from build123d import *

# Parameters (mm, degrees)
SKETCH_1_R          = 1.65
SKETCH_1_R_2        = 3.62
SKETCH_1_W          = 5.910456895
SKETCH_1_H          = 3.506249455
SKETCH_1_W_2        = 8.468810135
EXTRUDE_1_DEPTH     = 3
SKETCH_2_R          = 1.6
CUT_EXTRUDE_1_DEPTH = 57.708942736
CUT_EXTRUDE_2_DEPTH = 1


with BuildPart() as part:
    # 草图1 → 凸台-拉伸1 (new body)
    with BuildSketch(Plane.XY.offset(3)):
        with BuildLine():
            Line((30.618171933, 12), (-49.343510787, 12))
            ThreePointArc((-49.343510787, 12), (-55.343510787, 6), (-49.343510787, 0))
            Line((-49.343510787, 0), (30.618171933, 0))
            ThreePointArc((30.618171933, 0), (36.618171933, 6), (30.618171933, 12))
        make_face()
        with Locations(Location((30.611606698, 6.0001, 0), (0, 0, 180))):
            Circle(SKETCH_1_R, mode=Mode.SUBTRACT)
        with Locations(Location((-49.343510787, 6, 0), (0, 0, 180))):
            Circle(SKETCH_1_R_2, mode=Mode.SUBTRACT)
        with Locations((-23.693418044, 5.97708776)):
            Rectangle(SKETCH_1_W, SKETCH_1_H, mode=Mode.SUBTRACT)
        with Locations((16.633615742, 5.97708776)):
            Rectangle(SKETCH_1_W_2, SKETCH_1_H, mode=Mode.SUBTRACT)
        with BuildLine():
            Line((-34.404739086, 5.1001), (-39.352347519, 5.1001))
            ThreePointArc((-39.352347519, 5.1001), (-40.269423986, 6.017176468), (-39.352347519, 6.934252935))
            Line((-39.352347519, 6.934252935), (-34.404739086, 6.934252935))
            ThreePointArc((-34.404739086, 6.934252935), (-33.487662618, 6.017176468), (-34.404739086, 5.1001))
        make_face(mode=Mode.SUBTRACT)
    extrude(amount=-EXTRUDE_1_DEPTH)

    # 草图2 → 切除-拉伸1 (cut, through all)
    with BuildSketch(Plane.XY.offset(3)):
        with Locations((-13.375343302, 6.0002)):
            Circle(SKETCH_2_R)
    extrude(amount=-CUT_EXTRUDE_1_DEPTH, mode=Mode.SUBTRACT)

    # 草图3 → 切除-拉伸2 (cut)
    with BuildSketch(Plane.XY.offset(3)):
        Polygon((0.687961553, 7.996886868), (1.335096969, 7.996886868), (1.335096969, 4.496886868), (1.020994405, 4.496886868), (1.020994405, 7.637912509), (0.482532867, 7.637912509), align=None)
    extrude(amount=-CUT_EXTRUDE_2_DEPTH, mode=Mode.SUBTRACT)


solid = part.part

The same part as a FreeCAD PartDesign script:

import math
import FreeCAD as App
import Part
import Sketcher
Q = App.Units.Quantity


def add_polygon(sketch, points):
    """Adds a closed chain of lines whose ends are joined by coincident constraints."""
    first, n = sketch.GeometryCount, len(points)
    for a, b in zip(points, points[1:] + points[:1]):
        sketch.addGeometry(Part.LineSegment(App.Vector(*a, 0), App.Vector(*b, 0)), False)
    for i in range(n):
        sketch.addConstraint(Sketcher.Constraint("Coincident", first + i, 2, first + (i + 1) % n, 1))

doc = App.newDocument("Part")
body = doc.addObject("PartDesign::Body", "Body")

# Sketch on XY plane
sketch1 = body.newObject("Sketcher::SketchObject", "Sketch")
sketch1.AttachmentSupport = (doc.getObject("XY_Plane"), [""])
sketch1.MapMode = "FlatFace"
sketch1.AttachmentOffset = App.Placement(App.Vector(0, 0, 3), App.Rotation())
sketch1.addGeometry(Part.LineSegment(App.Vector(30.6, 12, 0), App.Vector(-49.3, 12, 0)), False)  # 0
sketch1.addGeometry(Part.ArcOfCircle(Part.Circle(App.Vector(-49.3, 6, 0), App.Vector(0, 0, 1), 6), math.radians(90), math.radians(270)), False)  # 1
sketch1.addGeometry(Part.LineSegment(App.Vector(-49.3, 0, 0), App.Vector(30.6, 0, 0)), False)  # 2
sketch1.addGeometry(Part.ArcOfCircle(Part.Circle(App.Vector(30.6, 6, 0), App.Vector(0, 0, 1), 6), math.radians(-90), math.radians(90)), False)  # 3
add_polygon(sketch1, [(-20.7, 4.2), (-26.6, 4.2), (-26.6, 7.7), (-20.7, 7.7)])  # lines 4-7
add_polygon(sketch1, [(20.9, 4.2), (12.4, 4.2), (12.4, 7.7), (20.9, 7.7)])  # lines 8-11
sketch1.addGeometry(Part.Circle(App.Vector(-49.3, 6, 0), App.Vector(0, 0, 1), 3.6), False)  # 12
sketch1.addGeometry(Part.ArcOfCircle(Part.Circle(App.Vector(-34.4, 6, 0), App.Vector(0, 0, 1), 0.9), math.radians(-90), math.radians(90)), False)  # 13
sketch1.addGeometry(Part.LineSegment(App.Vector(-34.4, 5.1, 0), App.Vector(-39.4, 5.1, 0)), False)  # 14
sketch1.addGeometry(Part.ArcOfCircle(Part.Circle(App.Vector(-39.4, 6, 0), App.Vector(0, 0, 1), 0.9), math.radians(90), math.radians(270)), False)  # 15
sketch1.addGeometry(Part.LineSegment(App.Vector(-39.4, 6.9, 0), App.Vector(-34.4, 6.9, 0)), False)  # 16
sketch1.addGeometry(Part.Circle(App.Vector(30.6, 6, 0), App.Vector(0, 0, 1), 1.6), False)  # 17
sketch1.addConstraint([
    Sketcher.Constraint("Tangent", 0, 2, 1, 1),
    Sketcher.Constraint("Tangent", 1, 2, 2, 1),
    Sketcher.Constraint("Tangent", 2, 2, 3, 1),
    Sketcher.Constraint("Tangent", 3, 2, 0, 1),
    Sketcher.Constraint("Tangent", 13, 1, 14, 1),
    Sketcher.Constraint("Tangent", 14, 2, 15, 2),
    Sketcher.Constraint("Tangent", 15, 1, 16, 1),
    Sketcher.Constraint("Tangent", 16, 2, 13, 2),
    Sketcher.Constraint("Horizontal", 0),
    Sketcher.Constraint("Horizontal", 2),
    Sketcher.Constraint("Horizontal", 4),
    Sketcher.Constraint("Vertical", 5),
    Sketcher.Constraint("Horizontal", 6),
    Sketcher.Constraint("Vertical", 7),
    Sketcher.Constraint("Horizontal", 8),
    Sketcher.Constraint("Vertical", 9),
    Sketcher.Constraint("Horizontal", 10),
    Sketcher.Constraint("Vertical", 11),
    Sketcher.Constraint("Horizontal", 14),
    Sketcher.Constraint("Horizontal", 16),
    Sketcher.Constraint("Coincident", 12, 3, 1, 3),
    Sketcher.Constraint("PointOnObject", 1, 2, -1),
    Sketcher.Constraint("Horizontal", 7, 2, 8, 2),
    Sketcher.Constraint("Horizontal", 6, 2, 9, 2),
    Sketcher.Constraint("Radius", 1, Q("6 mm")),
    Sketcher.Constraint("Diameter", 17, Q("3.3 mm")),
    Sketcher.Constraint("Diameter", 12, Q("7.24 mm")),
    Sketcher.Constraint("Radius", 13, Q("0.917076 mm")),
    Sketcher.Constraint("DistanceX", 8, 2, 8, 1, Q("8.46881 mm")),
    Sketcher.Constraint("DistanceX", 14, 2, 14, 1, Q("4.947608 mm")),
    Sketcher.Constraint("DistanceY", 5, 1, 5, 2, Q("3.506249 mm")),
    Sketcher.Constraint("DistanceY", -1, 1, 17, 3, Q("6.0001 mm")),
    Sketcher.Constraint("DistanceY", -1, 1, 13, 1, Q("5.1001 mm")),
    Sketcher.Constraint("DistanceX", 15, 3, 4, 2, Q("12.703701 mm")),
    Sketcher.Constraint("DistanceX", 7, 2, 8, 2, Q("33.1374 mm")),
    Sketcher.Constraint("DistanceX", 0, 2, 0, 1, Q("79.961683 mm")),
    Sketcher.Constraint("DistanceX", 4, 2, 4, 1, Q("5.910457 mm")),
    Sketcher.Constraint("DistanceX", 1, 3, -1, 1, Q("49.343511 mm")),
    Sketcher.Constraint("DistanceX", 13, 3, -1, 1, Q("34.404739 mm")),
    Sketcher.Constraint("DistanceX", -1, 1, 17, 3, Q("30.611607 mm")),
    Sketcher.Constraint("DistanceY", -1, 1, 4, 2, Q("4.223963 mm")),
])
pad1 = body.newObject("PartDesign::Pad", "Pad")
pad1.Profile = sketch1
pad1.Length = 3
pad1.Reversed = True

# Sketch on XY plane
sketch2 = body.newObject("Sketcher::SketchObject", "Sketch001")
sketch2.AttachmentSupport = (doc.getObject("XY_Plane"), [""])
sketch2.MapMode = "FlatFace"
sketch2.AttachmentOffset = App.Placement(App.Vector(0, 0, 3), App.Rotation())
sketch2.addGeometry(Part.Circle(App.Vector(-13.4, 6, 0), App.Vector(0, 0, 1), 1.6), False)
sketch2.addConstraint([
    Sketcher.Constraint("Diameter", 0, Q("3.2 mm")),
    Sketcher.Constraint("DistanceY", -1, 1, 0, 3, Q("6.0002 mm")),
    Sketcher.Constraint("DistanceX", 0, 3, -1, 1, Q("13.375343 mm")),
])
pocket1 = body.newObject("PartDesign::Pocket", "Pocket")
pocket1.Profile = sketch2
pocket1.Type = "ThroughAll"

# Sketch on XY plane
sketch3 = body.newObject("Sketcher::SketchObject", "Sketch002")
sketch3.AttachmentSupport = (doc.getObject("XY_Plane"), [""])
sketch3.MapMode = "FlatFace"
sketch3.AttachmentOffset = App.Placement(App.Vector(0, 0, 3), App.Rotation())
add_polygon(sketch3, [(1.34, 8), (0.69, 8), (0.48, 7.64), (1.02, 7.64), (1.02, 4.5), (1.34, 4.5)])  # lines 0-5
sketch3.addConstraint([
    Sketcher.Constraint("Horizontal", 0),
    Sketcher.Constraint("Horizontal", 2),
    Sketcher.Constraint("Vertical", 3),
    Sketcher.Constraint("Horizontal", 4),
    Sketcher.Constraint("Vertical", 5),
    Sketcher.Constraint("DistanceY", 5, 1, 5, 2, Q("3.5 mm")),
    Sketcher.Constraint("Distance", 1, Q("0.413598 mm")),
    Sketcher.Constraint("DistanceX", 2, 1, 2, 2, Q("0.538462 mm")),
    Sketcher.Constraint("DistanceX", 0, 2, 0, 1, Q("0.647135 mm")),
    Sketcher.Constraint("DistanceX", 4, 1, 4, 2, Q("0.314103 mm")),
    Sketcher.Constraint("DistanceX", -1, 1, 0, 2, Q("0.687962 mm")),
    Sketcher.Constraint("DistanceY", -1, 1, 0, 2, Q("7.996887 mm")),
])
pocket2 = body.newObject("PartDesign::Pocket", "Pocket001")
pocket2.Profile = sketch3
pocket2.Length = 1

doc.recompute()
